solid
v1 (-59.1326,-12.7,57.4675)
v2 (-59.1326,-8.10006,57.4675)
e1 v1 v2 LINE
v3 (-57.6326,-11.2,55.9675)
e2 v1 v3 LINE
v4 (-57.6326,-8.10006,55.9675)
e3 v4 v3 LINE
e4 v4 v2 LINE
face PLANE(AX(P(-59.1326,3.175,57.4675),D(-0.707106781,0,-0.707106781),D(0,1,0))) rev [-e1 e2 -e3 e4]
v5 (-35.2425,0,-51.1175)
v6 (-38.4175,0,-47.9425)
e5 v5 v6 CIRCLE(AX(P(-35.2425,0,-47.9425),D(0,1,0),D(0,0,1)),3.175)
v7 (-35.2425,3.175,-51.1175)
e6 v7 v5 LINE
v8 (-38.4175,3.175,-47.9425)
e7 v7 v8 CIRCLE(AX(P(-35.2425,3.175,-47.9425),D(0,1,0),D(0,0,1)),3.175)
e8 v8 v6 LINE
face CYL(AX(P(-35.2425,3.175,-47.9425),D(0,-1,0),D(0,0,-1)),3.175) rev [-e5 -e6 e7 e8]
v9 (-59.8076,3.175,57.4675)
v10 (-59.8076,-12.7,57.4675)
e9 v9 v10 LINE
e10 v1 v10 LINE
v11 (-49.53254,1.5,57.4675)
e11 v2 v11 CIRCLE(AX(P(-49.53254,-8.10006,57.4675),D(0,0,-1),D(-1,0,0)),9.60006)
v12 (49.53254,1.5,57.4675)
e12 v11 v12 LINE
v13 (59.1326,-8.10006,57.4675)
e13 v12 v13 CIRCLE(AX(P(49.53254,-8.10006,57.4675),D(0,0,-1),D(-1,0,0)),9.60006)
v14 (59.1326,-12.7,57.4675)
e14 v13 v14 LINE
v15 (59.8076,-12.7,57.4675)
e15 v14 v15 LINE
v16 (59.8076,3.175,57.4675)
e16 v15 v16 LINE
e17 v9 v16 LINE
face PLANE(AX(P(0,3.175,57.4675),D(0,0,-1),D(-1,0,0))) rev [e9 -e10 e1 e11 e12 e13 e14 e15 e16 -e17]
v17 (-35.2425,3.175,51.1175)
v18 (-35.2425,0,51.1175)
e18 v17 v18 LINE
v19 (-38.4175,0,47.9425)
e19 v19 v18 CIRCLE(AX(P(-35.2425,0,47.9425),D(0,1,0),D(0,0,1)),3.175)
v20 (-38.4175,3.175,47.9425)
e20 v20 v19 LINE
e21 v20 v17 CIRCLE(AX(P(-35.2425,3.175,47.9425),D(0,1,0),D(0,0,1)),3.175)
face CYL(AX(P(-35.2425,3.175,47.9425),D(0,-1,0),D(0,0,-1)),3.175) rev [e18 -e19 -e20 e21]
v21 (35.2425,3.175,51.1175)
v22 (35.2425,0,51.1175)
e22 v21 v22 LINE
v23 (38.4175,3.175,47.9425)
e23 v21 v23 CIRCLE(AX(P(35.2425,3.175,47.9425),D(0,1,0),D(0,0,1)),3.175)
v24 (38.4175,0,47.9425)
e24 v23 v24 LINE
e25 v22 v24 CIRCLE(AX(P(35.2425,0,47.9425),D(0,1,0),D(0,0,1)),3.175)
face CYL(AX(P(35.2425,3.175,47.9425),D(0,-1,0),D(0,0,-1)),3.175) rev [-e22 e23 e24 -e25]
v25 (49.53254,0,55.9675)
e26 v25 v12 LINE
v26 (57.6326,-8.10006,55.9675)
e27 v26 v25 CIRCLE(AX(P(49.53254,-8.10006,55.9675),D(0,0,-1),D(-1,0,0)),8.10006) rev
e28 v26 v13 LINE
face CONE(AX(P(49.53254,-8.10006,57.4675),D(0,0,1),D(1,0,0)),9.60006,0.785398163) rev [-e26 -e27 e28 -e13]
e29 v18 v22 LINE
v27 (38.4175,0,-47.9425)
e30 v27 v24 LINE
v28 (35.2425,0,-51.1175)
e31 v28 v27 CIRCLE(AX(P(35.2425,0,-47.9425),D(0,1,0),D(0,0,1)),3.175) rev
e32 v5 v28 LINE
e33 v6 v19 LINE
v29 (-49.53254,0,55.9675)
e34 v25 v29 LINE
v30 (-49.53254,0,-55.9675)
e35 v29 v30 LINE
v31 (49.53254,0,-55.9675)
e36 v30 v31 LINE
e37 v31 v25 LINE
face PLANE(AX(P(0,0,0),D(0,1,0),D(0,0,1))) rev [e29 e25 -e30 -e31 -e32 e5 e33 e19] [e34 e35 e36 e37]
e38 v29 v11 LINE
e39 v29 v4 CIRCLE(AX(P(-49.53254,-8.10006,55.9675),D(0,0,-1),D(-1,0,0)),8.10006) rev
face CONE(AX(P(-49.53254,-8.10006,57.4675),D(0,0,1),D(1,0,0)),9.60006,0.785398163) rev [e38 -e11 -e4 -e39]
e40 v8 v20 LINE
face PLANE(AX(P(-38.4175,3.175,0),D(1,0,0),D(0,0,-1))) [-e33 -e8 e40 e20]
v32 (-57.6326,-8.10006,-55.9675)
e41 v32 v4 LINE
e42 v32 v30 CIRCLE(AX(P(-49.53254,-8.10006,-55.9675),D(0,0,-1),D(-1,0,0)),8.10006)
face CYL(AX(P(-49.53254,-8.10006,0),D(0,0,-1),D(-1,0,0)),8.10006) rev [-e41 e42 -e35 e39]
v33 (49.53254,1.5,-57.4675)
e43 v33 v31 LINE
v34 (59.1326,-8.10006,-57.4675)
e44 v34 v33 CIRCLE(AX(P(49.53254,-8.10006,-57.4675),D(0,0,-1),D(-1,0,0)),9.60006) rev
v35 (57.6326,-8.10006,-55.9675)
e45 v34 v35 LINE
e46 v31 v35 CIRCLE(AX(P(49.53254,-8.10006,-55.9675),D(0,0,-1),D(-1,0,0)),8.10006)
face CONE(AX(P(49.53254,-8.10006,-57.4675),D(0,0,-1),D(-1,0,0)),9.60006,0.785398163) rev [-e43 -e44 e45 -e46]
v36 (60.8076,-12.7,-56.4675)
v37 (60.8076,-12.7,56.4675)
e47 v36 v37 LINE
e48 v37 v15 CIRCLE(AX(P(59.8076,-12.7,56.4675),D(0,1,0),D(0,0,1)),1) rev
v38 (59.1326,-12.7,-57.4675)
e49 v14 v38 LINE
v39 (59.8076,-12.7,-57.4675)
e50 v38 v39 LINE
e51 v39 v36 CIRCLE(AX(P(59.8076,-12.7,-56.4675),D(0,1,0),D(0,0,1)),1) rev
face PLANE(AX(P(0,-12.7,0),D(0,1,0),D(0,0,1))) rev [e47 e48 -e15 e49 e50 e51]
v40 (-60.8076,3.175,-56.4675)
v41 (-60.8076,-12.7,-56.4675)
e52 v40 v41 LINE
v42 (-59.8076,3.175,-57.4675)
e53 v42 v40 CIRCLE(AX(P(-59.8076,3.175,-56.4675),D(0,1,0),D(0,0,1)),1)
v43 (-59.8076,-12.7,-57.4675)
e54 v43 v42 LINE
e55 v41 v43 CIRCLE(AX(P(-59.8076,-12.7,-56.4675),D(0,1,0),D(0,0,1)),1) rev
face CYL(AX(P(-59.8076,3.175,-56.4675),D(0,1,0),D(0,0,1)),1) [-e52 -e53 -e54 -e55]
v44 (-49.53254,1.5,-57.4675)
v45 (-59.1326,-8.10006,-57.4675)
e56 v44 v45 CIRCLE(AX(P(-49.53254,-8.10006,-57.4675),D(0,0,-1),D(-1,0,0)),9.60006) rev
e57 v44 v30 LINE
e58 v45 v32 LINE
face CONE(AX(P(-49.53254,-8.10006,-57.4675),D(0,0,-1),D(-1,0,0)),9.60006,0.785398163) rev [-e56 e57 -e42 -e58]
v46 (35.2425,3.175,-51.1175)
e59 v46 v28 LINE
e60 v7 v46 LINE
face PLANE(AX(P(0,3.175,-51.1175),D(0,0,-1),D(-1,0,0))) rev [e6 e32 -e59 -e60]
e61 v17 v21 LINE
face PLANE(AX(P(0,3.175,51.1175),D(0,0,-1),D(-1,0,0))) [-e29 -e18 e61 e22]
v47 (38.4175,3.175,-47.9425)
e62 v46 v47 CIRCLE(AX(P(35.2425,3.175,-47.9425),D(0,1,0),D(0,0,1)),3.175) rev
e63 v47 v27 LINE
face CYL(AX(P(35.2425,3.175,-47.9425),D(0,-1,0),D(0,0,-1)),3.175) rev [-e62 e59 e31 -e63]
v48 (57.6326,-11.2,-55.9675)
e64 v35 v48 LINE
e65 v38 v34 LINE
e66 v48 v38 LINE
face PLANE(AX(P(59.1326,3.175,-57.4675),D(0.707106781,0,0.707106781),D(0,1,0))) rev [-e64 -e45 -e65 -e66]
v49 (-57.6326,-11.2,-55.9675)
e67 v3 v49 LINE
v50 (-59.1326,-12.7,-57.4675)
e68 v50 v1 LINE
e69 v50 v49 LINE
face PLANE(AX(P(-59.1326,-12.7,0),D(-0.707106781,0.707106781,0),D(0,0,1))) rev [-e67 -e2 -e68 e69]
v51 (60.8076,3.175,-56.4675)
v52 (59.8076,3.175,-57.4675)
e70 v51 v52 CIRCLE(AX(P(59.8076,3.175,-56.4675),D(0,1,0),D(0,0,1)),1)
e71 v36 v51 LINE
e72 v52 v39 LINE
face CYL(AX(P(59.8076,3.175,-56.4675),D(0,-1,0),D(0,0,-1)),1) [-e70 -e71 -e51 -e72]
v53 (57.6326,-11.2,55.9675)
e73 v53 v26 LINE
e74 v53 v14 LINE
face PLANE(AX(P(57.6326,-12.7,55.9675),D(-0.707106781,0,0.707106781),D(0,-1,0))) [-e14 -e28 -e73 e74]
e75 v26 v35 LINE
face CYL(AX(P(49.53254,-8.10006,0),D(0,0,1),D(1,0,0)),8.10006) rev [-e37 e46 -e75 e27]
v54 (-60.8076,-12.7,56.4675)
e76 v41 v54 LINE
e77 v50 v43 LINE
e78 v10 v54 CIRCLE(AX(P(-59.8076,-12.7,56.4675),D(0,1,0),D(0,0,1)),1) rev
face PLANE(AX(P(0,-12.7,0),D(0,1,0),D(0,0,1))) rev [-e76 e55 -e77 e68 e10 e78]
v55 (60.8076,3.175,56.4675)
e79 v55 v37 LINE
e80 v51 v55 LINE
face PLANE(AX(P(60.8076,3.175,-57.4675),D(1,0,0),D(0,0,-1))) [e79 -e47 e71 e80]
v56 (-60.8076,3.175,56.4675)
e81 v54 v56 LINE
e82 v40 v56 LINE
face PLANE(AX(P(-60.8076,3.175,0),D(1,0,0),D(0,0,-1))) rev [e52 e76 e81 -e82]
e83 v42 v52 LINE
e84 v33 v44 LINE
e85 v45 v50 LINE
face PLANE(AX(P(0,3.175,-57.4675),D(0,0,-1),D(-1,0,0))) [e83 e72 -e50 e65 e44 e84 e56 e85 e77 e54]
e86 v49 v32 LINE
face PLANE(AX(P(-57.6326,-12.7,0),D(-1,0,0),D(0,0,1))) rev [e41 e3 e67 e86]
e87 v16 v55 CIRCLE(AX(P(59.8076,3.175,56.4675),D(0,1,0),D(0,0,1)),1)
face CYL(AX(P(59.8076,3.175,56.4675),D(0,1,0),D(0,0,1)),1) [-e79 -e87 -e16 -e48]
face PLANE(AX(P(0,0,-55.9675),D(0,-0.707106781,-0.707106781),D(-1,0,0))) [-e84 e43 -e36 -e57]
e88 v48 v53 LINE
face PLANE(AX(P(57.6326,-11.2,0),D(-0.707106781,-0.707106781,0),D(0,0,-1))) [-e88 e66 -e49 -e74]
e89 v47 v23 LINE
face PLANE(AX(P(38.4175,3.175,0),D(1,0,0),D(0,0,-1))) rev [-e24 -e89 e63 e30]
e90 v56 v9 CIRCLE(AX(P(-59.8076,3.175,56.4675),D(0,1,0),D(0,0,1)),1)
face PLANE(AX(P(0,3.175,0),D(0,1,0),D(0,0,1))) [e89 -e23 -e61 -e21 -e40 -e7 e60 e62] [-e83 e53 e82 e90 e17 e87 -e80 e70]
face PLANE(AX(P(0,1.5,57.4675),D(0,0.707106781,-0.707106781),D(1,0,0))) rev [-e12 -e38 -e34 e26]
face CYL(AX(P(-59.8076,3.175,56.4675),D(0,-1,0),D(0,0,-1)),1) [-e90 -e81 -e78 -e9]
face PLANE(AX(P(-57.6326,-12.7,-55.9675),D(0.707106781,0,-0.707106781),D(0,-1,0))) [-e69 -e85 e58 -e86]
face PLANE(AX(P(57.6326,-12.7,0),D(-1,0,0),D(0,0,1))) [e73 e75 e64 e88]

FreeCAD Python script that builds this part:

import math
import FreeCAD as App
import Part
import Sketcher
Q = App.Units.Quantity


def edges_at(feature, points):
    """Names of the edges that pass closest to the given points."""
    edges = feature.Shape.Edges
    near = lambda p: min(range(len(edges)), key=lambda i: edges[i].distToShape(Part.Vertex(*p))[0])
    return sorted({f"Edge{near(p) + 1}" for p in points})

doc = App.newDocument("Part")
body = doc.addObject("PartDesign::Body", "Body")

# Sketch on XZ plane
sketch1 = body.newObject("Sketcher::SketchObject", "Sketch")
sketch1.AttachmentSupport = (doc.getObject("XZ_Plane"), [""])
sketch1.MapMode = "FlatFace"
sketch1.addGeometry([
    Part.LineSegment(App.Vector(-60.8, -57.5, 0), App.Vector(-60.8, 57.5, 0)),  # 0
    Part.LineSegment(App.Vector(-60.8, 57.5, 0), App.Vector(60.8, 57.5, 0)),  # 1
    Part.LineSegment(App.Vector(60.8, 57.5, 0), App.Vector(60.8, -57.5, 0)),  # 2
    Part.LineSegment(App.Vector(60.8, -57.5, 0), App.Vector(-60.8, -57.5, 0)),  # 3
    Part.ArcOfCircle(Part.Circle(App.Vector(-35.2, -47.9, 0), App.Vector(0, 0, 1), 3.2), math.radians(-180), math.radians(-90)),  # 4
    Part.LineSegment(App.Vector(-35.2, -51.1, 0), App.Vector(35.2, -51.1, 0)),  # 5
    Part.ArcOfCircle(Part.Circle(App.Vector(35.2, -47.9, 0), App.Vector(0, 0, 1), 3.2), math.radians(-90), math.radians(0)),  # 6
    Part.LineSegment(App.Vector(38.4, -47.9, 0), App.Vector(38.4, 47.9, 0)),  # 7
    Part.ArcOfCircle(Part.Circle(App.Vector(35.2, 47.9, 0), App.Vector(0, 0, 1), 3.2), math.radians(0), math.radians(90)),  # 8
    Part.LineSegment(App.Vector(35.2, 51.1, 0), App.Vector(-35.2, 51.1, 0)),  # 9
    Part.ArcOfCircle(Part.Circle(App.Vector(-35.2, 47.9, 0), App.Vector(0, 0, 1), 3.2), math.radians(90), math.radians(180)),  # 10
    Part.LineSegment(App.Vector(-38.4, 47.9, 0), App.Vector(-38.4, -47.9, 0)),  # 11
], False)
sketch1.addConstraint([
    Sketcher.Constraint("Coincident", 0, 2, 1, 1),
    Sketcher.Constraint("Coincident", 1, 2, 2, 1),
    Sketcher.Constraint("Coincident", 2, 2, 3, 1),
    Sketcher.Constraint("Coincident", 3, 2, 0, 1),
    Sketcher.Constraint("Tangent", 4, 2, 5, 1),
    Sketcher.Constraint("Tangent", 5, 2, 6, 1),
    Sketcher.Constraint("Tangent", 6, 2, 7, 1),
    Sketcher.Constraint("Tangent", 7, 2, 8, 1),
    Sketcher.Constraint("Tangent", 8, 2, 9, 1),
    Sketcher.Constraint("Tangent", 9, 2, 10, 1),
    Sketcher.Constraint("Tangent", 10, 2, 11, 1),
    Sketcher.Constraint("Tangent", 11, 2, 4, 1),
    Sketcher.Constraint("Vertical", 0),
    Sketcher.Constraint("Horizontal", 1),
    Sketcher.Constraint("Vertical", 2),
    Sketcher.Constraint("Horizontal", 3),
    Sketcher.Constraint("Horizontal", 5),
    Sketcher.Constraint("Vertical", 7),
    Sketcher.Constraint("Horizontal", 9),
    Sketcher.Constraint("Vertical", 11),
    Sketcher.Constraint("Equal", 4, 6),
    Sketcher.Constraint("Equal", 6, 8),
    Sketcher.Constraint("Equal", 8, 10),
    Sketcher.Constraint("Symmetric", 4, 3, 8, 3, -1, 1),
    Sketcher.Constraint("Symmetric", 0, 2, 2, 2, -1, 1),
    Sketcher.Constraint("Radius", 4, Q("0.125 in")),
    Sketcher.Constraint("DistanceY", 4, 2, 10, 3, Q("3.9 in")),
    Sketcher.Constraint("DistanceX", 4, 3, 6, 2, Q("2.9 in")),
    Sketcher.Constraint("DistanceX", 1, 1, 1, 2, Q("4.788 in")),
    Sketcher.Constraint("DistanceY", 0, 1, 0, 2, Q("4.525 in")),
])
pad1 = body.newObject("PartDesign::Pad", "Pad")
pad1.Profile = sketch1
pad1.Length = Q("0.125 in")
pad1.Reversed = True

# Sketch on XZ plane
sketch2 = body.newObject("Sketcher::SketchObject", "Sketch001")
sketch2.AttachmentSupport = (doc.getObject("XZ_Plane"), [""])
sketch2.MapMode = "FlatFace"
sketch2.addGeometry([
    Part.LineSegment(App.Vector(57.6, -57.5, 0), App.Vector(57.6, 57.5, 0)),  # 0
    Part.LineSegment(App.Vector(57.6, 57.5, 0), App.Vector(60.8, 57.5, 0)),  # 1
    Part.LineSegment(App.Vector(60.8, 57.5, 0), App.Vector(60.8, -57.5, 0)),  # 2
    Part.LineSegment(App.Vector(60.8, -57.5, 0), App.Vector(57.6, -57.5, 0)),  # 3
    Part.LineSegment(App.Vector(-60.8, -57.5, 0), App.Vector(-60.8, 57.5, 0)),  # 4
    Part.LineSegment(App.Vector(-60.8, 57.5, 0), App.Vector(-57.6, 57.5, 0)),  # 5
    Part.LineSegment(App.Vector(-57.6, 57.5, 0), App.Vector(-57.6, -57.5, 0)),  # 6
    Part.LineSegment(App.Vector(-57.6, -57.5, 0), App.Vector(-60.8, -57.5, 0)),  # 7
], False)
sketch2.addConstraint([
    Sketcher.Constraint("Coincident", 0, 2, 1, 1),
    Sketcher.Constraint("Coincident", 1, 2, 2, 1),
    Sketcher.Constraint("Coincident", 2, 2, 3, 1),
    Sketcher.Constraint("Coincident", 3, 2, 0, 1),
    Sketcher.Constraint("Coincident", 4, 2, 5, 1),
    Sketcher.Constraint("Coincident", 5, 2, 6, 1),
    Sketcher.Constraint("Coincident", 6, 2, 7, 1),
    Sketcher.Constraint("Coincident", 7, 2, 4, 1),
    Sketcher.Constraint("Vertical", 0),
    Sketcher.Constraint("Horizontal", 1),
    Sketcher.Constraint("Vertical", 2),
    Sketcher.Constraint("Horizontal", 3),
    Sketcher.Constraint("Vertical", 4),
    Sketcher.Constraint("Horizontal", 5),
    Sketcher.Constraint("Vertical", 6),
    Sketcher.Constraint("Horizontal", 7),
    Sketcher.Constraint("Symmetric", 2, 2, 4, 2, -1, 1),
    Sketcher.Constraint("Symmetric", 0, 2, 6, 2, -1, 1),
    Sketcher.Constraint("Horizontal", 1, 2, 4, 2),
    Sketcher.Constraint("DistanceX", 1, 1, 1, 2, Q("0.125 in")),
    Sketcher.Constraint("DistanceY", 0, 1, 0, 2, Q("4.525 in")),
    Sketcher.Constraint("DistanceX", -1, 1, 0, 2, Q("2.269 in")),
])
pad2 = body.newObject("PartDesign::Pad", "Pad001")
pad2.Profile = sketch2
pad2.Length = Q("0.5 in")
doc.recompute()

fillet = body.newObject("PartDesign::Fillet", "Fillet")
fillet.Base = (pad2, edges_at(pad2, [(57.633, 0, 0), (-57.633, 0, 0)]))
fillet.Radius = Q("0.3189 in")
doc.recompute()

chamfer = body.newObject("PartDesign::Chamfer", "Chamfer")
chamfer.Base = (fillet, edges_at(fillet, [
    (57.633, -12.7, 0),
    (57.633, -10.4, 57.468),
    (57.633, -10.4, -57.468),
    (-57.633, -10.4, -57.468),
    (-57.633, -10.4, 57.468),
    (-57.633, -12.7, 0),
    (0, 0, -57.468),
    (0, 0, 57.468),
    (-55.26, -2.372, 57.468),
    (-55.26, -2.372, -57.468),
    (55.26, -2.372, 57.468),
    (55.26, -2.372, -57.468),
]))
chamfer.Size = 1.5
doc.recompute()

fillet2 = body.newObject("PartDesign::Fillet", "Fillet001")
fillet2.Base = (chamfer, edges_at(chamfer, [
    (-60.808, -4.763, 57.468),
    (-60.808, -4.763, -57.468),
    (60.808, -4.763, 57.468),
    (60.808, -4.763, -57.468),
]))
fillet2.Radius = 1

doc.recompute()
